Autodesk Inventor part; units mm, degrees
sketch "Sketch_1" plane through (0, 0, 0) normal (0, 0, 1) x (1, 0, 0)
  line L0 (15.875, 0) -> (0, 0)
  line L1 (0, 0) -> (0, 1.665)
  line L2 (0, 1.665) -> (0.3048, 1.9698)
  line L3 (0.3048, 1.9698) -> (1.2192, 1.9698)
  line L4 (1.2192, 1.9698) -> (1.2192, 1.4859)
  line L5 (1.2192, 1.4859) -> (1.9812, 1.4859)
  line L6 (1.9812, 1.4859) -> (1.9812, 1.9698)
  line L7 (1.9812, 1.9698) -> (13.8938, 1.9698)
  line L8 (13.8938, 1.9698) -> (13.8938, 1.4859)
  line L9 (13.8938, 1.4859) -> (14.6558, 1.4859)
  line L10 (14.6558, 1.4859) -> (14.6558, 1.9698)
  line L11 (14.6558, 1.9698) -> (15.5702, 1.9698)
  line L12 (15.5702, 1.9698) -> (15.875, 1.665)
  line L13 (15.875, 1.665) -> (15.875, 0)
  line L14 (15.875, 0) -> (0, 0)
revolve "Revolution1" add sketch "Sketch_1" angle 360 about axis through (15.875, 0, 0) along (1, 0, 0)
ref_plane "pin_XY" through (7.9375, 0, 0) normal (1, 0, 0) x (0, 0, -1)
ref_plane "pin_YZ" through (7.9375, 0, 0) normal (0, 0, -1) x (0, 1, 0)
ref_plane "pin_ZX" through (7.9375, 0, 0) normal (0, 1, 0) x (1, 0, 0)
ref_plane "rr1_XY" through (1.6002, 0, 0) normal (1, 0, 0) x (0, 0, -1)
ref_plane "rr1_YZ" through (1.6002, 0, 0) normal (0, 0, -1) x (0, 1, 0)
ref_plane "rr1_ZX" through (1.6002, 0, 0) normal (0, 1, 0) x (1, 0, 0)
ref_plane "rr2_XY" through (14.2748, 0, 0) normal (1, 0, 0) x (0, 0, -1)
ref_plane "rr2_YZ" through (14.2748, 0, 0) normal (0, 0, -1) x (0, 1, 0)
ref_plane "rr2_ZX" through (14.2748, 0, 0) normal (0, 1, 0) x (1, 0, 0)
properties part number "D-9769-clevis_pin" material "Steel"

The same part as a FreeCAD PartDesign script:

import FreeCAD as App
import Part
import Sketcher
from FreeCAD import Vector
Q = App.Units.Quantity


def add_polygon(sketch, points):
    """Adds a closed chain of lines whose ends are joined by coincident constraints."""
    first, n = sketch.GeometryCount, len(points)
    for a, b in zip(points, points[1:] + points[:1]):
        sketch.addGeometry(Part.LineSegment(App.Vector(*a, 0), App.Vector(*b, 0)), False)
    for i in range(n):
        sketch.addConstraint(Sketcher.Constraint("Coincident", first + i, 2, first + (i + 1) % n, 1))

doc = App.newDocument("Part")
body = doc.addObject("PartDesign::Body", "Body")

# Sketch on XY plane
sketch1 = body.newObject("Sketcher::SketchObject", "Sketch")
sketch1.AttachmentSupport = (doc.getObject("XY_Plane"), [""])
sketch1.MapMode = "FlatFace"
add_polygon(sketch1, [(0, 0), (15.875, 0), (15.875, 1.665), (15.5702, 1.9698), (14.6558, 1.9698), (14.6558, 1.4859), (13.8938, 1.4859), (13.8938, 1.9698), (1.9812, 1.9698), (1.9812, 1.4859), (1.2192, 1.4859), (1.2192, 1.9698), (0.3048, 1.9698), (0, 1.665)])  # lines 0-13
sketch1.addConstraint([
    Sketcher.Constraint("Horizontal", 0),
    Sketcher.Constraint("Vertical", 1),
    Sketcher.Constraint("Horizontal", 3),
    Sketcher.Constraint("Vertical", 4),
    Sketcher.Constraint("Horizontal", 5),
    Sketcher.Constraint("Vertical", 6),
    Sketcher.Constraint("Horizontal", 7),
    Sketcher.Constraint("Vertical", 8),
    Sketcher.Constraint("Horizontal", 9),
    Sketcher.Constraint("Vertical", 10),
    Sketcher.Constraint("Horizontal", 11),
    Sketcher.Constraint("Vertical", 13),
    Sketcher.Constraint("Coincident", 13, 2, -1, 1),
    Sketcher.Constraint("Perpendicular", 2, 12),
    Sketcher.Constraint("Horizontal", 3, 2, 6, 2),
    Sketcher.Constraint("Horizontal", 5, 2, 8, 2),
    Sketcher.Constraint("Horizontal", 7, 2, 10, 2),
    Sketcher.Constraint("Horizontal", 1, 2, 12, 2),
    Sketcher.Constraint("Equal", 5, 9),
    Sketcher.Constraint("Equal", 3, 11),
    Sketcher.Constraint("Equal", 2, 12),
    Sketcher.Constraint("DistanceX", 5, 2, 5, 1, Q("0.03 in")),
    Sketcher.Constraint("DistanceX", 0, 1, 0, 2, Q("0.625 in")),
    Sketcher.Constraint("DistanceX", 3, 2, 3, 1, Q("0.036 in")),
    Sketcher.Constraint("DistanceX", 7, 2, 7, 1, Q("0.469 in")),
    Sketcher.Constraint("DistanceY", 1, 1, 1, 2, Q("1.665 mm")),
    Sketcher.Constraint("DistanceY", 4, 2, 4, 1, Q("0.484 mm")),
])
revolution = body.newObject("PartDesign::Revolution", "Revolution")
revolution.Profile = sketch1
revolution.ReferenceAxis = (sketch1, ["H_Axis"])
revolution.Angle = 360

doc.recompute()
